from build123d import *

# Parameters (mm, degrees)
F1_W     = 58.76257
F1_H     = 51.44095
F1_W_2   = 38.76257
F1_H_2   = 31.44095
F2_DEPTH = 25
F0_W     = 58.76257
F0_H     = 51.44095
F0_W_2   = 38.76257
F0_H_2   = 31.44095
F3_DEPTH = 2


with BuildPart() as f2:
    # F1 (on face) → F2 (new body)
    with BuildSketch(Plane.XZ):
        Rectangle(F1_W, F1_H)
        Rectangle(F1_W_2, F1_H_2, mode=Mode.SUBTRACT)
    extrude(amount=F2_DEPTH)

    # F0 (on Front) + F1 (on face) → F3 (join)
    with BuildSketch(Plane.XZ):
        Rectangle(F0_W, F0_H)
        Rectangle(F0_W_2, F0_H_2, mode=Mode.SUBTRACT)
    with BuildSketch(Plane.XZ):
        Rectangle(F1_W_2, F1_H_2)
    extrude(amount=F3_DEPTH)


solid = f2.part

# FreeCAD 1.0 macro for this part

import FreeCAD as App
import Part
import Sketcher
from FreeCAD import Vector


def add_polygon(sketch, points):
    """Adds a closed chain of lines whose ends are joined by coincident constraints."""
    first, n = sketch.GeometryCount, len(points)
    for a, b in zip(points, points[1:] + points[:1]):
        sketch.addGeometry(Part.LineSegment(App.Vector(*a, 0), App.Vector(*b, 0)), False)
    for i in range(n):
        sketch.addConstraint(Sketcher.Constraint("Coincident", first + i, 2, first + (i + 1) % n, 1))

doc = App.newDocument("Part")
params = doc.addObject("Spreadsheet::Sheet", "Params")
for row, (alias, value) in enumerate([
    ("pad1_length", "25 mm"),
    ("pad2_length", "2 mm"),
], start=1):
    params.set(f"A{row}", alias)
    params.set(f"B{row}", "=" + value)
    params.setAlias(f"B{row}", alias)

body = doc.addObject("PartDesign::Body", "Body")

# Sketch on XZ plane
sketch1 = body.newObject("Sketcher::SketchObject", "Sketch")
sketch1.AttachmentSupport = (doc.getObject("XZ_Plane"), [""])
sketch1.MapMode = "FlatFace"
add_polygon(sketch1, [(-29, 26), (-29, -26), (29, -26), (29, 26)])  # lines 0-3
add_polygon(sketch1, [(19, -16), (-19, -16), (-19, 16), (19, 16)])  # lines 4-7
sketch1.addConstraint(Sketcher.Constraint("Vertical", 0))
sketch1.addConstraint(Sketcher.Constraint("Horizontal", 1))
sketch1.addConstraint(Sketcher.Constraint("Vertical", 2))
sketch1.addConstraint(Sketcher.Constraint("Horizontal", 3))
sketch1.addConstraint(Sketcher.Constraint("Horizontal", 4))
sketch1.addConstraint(Sketcher.Constraint("Vertical", 5))
sketch1.addConstraint(Sketcher.Constraint("Horizontal", 6))
sketch1.addConstraint(Sketcher.Constraint("Vertical", 7))
sketch1.addConstraint(Sketcher.Constraint("Symmetric", 0, 2, 2, 2, -1, 1))
sketch1.addConstraint(Sketcher.Constraint("Symmetric", 4, 2, 6, 2, -1, 1))
sketch1.addConstraint(Sketcher.Constraint("DistanceX", 0, 2, 4, 2, 10.0))
sketch1.addConstraint(Sketcher.Constraint("DistanceY", 0, 2, 4, 2, 10.0))
sketch1.addConstraint(Sketcher.Constraint("DistanceX", 1, 1, 1, 2, 58.76257))
sketch1.addConstraint(Sketcher.Constraint("DistanceY", 0, 2, 0, 1, 51.44095))
pad1 = body.newObject("PartDesign::Pad", "Pad")
pad1.Profile = sketch1
pad1.setExpression("Length", "Params.pad1_length")

# Sketch on XZ plane
sketch2 = body.newObject("Sketcher::SketchObject", "Sketch001")
sketch2.AttachmentSupport = (doc.getObject("XZ_Plane"), [""])
sketch2.MapMode = "FlatFace"
add_polygon(sketch2, [(-29, 26), (-29, -26), (29, -26), (29, 26)])  # lines 0-3
sketch2.addConstraint(Sketcher.Constraint("Vertical", 0))
sketch2.addConstraint(Sketcher.Constraint("Horizontal", 1))
sketch2.addConstraint(Sketcher.Constraint("Vertical", 2))
sketch2.addConstraint(Sketcher.Constraint("Horizontal", 3))
sketch2.addConstraint(Sketcher.Constraint("Symmetric", 0, 2, 2, 2, -1, 1))
sketch2.addConstraint(Sketcher.Constraint("DistanceX", 1, 1, 1, 2, 58.76257))
sketch2.addConstraint(Sketcher.Constraint("DistanceY", 0, 2, 0, 1, 51.44095))
pad2 = body.newObject("PartDesign::Pad", "Pad001")
pad2.Profile = sketch2
pad2.setExpression("Length", "Params.pad2_length")

doc.recompute()
